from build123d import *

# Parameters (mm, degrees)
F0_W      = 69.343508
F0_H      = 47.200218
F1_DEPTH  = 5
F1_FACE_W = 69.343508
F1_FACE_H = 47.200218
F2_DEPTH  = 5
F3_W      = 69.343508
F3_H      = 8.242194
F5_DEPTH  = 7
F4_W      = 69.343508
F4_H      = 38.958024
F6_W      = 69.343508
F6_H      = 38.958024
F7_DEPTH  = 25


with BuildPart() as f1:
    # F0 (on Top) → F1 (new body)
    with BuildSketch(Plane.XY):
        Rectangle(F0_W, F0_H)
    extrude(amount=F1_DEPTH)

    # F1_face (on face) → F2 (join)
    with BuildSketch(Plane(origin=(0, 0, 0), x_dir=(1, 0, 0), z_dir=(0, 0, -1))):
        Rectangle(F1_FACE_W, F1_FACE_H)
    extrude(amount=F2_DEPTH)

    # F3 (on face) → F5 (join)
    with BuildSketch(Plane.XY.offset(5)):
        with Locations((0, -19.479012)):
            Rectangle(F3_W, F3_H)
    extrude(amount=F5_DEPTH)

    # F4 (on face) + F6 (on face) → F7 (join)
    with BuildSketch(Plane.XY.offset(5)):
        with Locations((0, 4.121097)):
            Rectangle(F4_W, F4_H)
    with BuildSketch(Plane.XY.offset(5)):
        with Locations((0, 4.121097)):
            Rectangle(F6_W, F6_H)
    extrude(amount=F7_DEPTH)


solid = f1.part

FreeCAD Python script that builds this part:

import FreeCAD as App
import Part
import Sketcher
from FreeCAD import Vector
Q = App.Units.Quantity

doc = App.newDocument("Part")
body = doc.addObject("PartDesign::Body", "Body")

sketch1 = doc.addObject("Sketcher::SketchObject", "Sketch")
body.addObject(sketch1)
sketch1.AttachmentSupport = (doc.XY_Plane, [""])
sketch1.MapMode = "FlatFace"
sketch1.addGeometry([
    Part.LineSegment(Vector(-35, 24, 0), Vector(-35, -24, 0)),
    Part.LineSegment(Vector(-35, -24, 0), Vector(35, -24, 0)),
    Part.LineSegment(Vector(35, -24, 0), Vector(35, 24, 0)),
    Part.LineSegment(Vector(35, 24, 0), Vector(-35, 24, 0)),
], False)
sketch1.addConstraint([
    Sketcher.Constraint("Coincident", 0, 2, 1, 1),
    Sketcher.Constraint("Coincident", 1, 2, 2, 1),
    Sketcher.Constraint("Coincident", 2, 2, 3, 1),
    Sketcher.Constraint("Coincident", 3, 2, 0, 1),
    Sketcher.Constraint("Vertical", 0),
    Sketcher.Constraint("Horizontal", 1),
    Sketcher.Constraint("Vertical", 2),
    Sketcher.Constraint("Horizontal", 3),
    Sketcher.Constraint("Symmetric", 0, 2, 2, 2, -1, 1),
    Sketcher.Constraint("DistanceX", 1, 1, 1, 2, Q("69.343508 mm")),
    Sketcher.Constraint("DistanceY", 0, 2, 0, 1, Q("47.200218 mm")),
])
pad1 = doc.addObject("PartDesign::Pad", "Pad")
body.addObject(pad1)
pad1.Profile = sketch1
pad1.Length = 5

sketch2 = doc.addObject("Sketcher::SketchObject", "Sketch001")
body.addObject(sketch2)
sketch2.AttachmentSupport = (doc.XY_Plane, [""])
sketch2.MapMode = "FlatFace"
sketch2.addGeometry([
    Part.LineSegment(Vector(-35, -24, 0), Vector(-35, 24, 0)),
    Part.LineSegment(Vector(-35, 24, 0), Vector(35, 24, 0)),
    Part.LineSegment(Vector(35, 24, 0), Vector(35, -24, 0)),
    Part.LineSegment(Vector(35, -24, 0), Vector(-35, -24, 0)),
], False)
sketch2.addConstraint([
    Sketcher.Constraint("Coincident", 0, 2, 1, 1),
    Sketcher.Constraint("Coincident", 1, 2, 2, 1),
    Sketcher.Constraint("Coincident", 2, 2, 3, 1),
    Sketcher.Constraint("Coincident", 3, 2, 0, 1),
    Sketcher.Constraint("Vertical", 0),
    Sketcher.Constraint("Horizontal", 1),
    Sketcher.Constraint("Vertical", 2),
    Sketcher.Constraint("Horizontal", 3),
    Sketcher.Constraint("Symmetric", 0, 2, 2, 2, -1, 1),
    Sketcher.Constraint("DistanceX", 1, 1, 1, 2, Q("69.343508 mm")),
    Sketcher.Constraint("DistanceY", 0, 1, 0, 2, Q("47.200218 mm")),
])
pad2 = doc.addObject("PartDesign::Pad", "Pad001")
body.addObject(pad2)
pad2.Profile = sketch2
pad2.Length = 5
pad2.Reversed = True

sketch3 = doc.addObject("Sketcher::SketchObject", "Sketch002")
body.addObject(sketch3)
sketch3.AttachmentSupport = (doc.XY_Plane, [""])
sketch3.MapMode = "FlatFace"
sketch3.AttachmentOffset = App.Placement(Vector(0, 0, 5), App.Rotation())
sketch3.addGeometry([
    Part.LineSegment(Vector(-35, -15, 0), Vector(-35, -24, 0)),
    Part.LineSegment(Vector(-35, -24, 0), Vector(35, -24, 0)),
    Part.LineSegment(Vector(35, -24, 0), Vector(35, -15, 0)),
    Part.LineSegment(Vector(35, -15, 0), Vector(-35, -15, 0)),
], False)
sketch3.addConstraint([
    Sketcher.Constraint("Coincident", 0, 2, 1, 1),
    Sketcher.Constraint("Coincident", 1, 2, 2, 1),
    Sketcher.Constraint("Coincident", 2, 2, 3, 1),
    Sketcher.Constraint("Coincident", 3, 2, 0, 1),
    Sketcher.Constraint("Vertical", 0),
    Sketcher.Constraint("Horizontal", 1),
    Sketcher.Constraint("Vertical", 2),
    Sketcher.Constraint("Horizontal", 3),
    Sketcher.Constraint("DistanceX", 1, 1, 1, 2, Q("69.343508 mm")),
    Sketcher.Constraint("DistanceY", 0, 2, 0, 1, Q("8.242194 mm")),
    Sketcher.Constraint("DistanceY", 0, 2, -1, 1, Q("23.600109 mm")),
    Sketcher.Constraint("DistanceX", 0, 2, -1, 1, Q("34.671754 mm")),
])
pad3 = doc.addObject("PartDesign::Pad", "Pad002")
body.addObject(pad3)
pad3.Profile = sketch3
pad3.Length = 7

sketch4 = doc.addObject("Sketcher::SketchObject", "Sketch003")
body.addObject(sketch4)
sketch4.AttachmentSupport = (doc.XY_Plane, [""])
sketch4.MapMode = "FlatFace"
sketch4.AttachmentOffset = App.Placement(Vector(0, 0, 5), App.Rotation())
sketch4.addGeometry([
    Part.LineSegment(Vector(-35, 24, 0), Vector(-35, -15, 0)),
    Part.LineSegment(Vector(-35, -15, 0), Vector(35, -15, 0)),
    Part.LineSegment(Vector(35, -15, 0), Vector(35, 24, 0)),
    Part.LineSegment(Vector(35, 24, 0), Vector(-35, 24, 0)),
], False)
sketch4.addConstraint([
    Sketcher.Constraint("Coincident", 0, 2, 1, 1),
    Sketcher.Constraint("Coincident", 1, 2, 2, 1),
    Sketcher.Constraint("Coincident", 2, 2, 3, 1),
    Sketcher.Constraint("Coincident", 3, 2, 0, 1),
    Sketcher.Constraint("Vertical", 0),
    Sketcher.Constraint("Horizontal", 1),
    Sketcher.Constraint("Vertical", 2),
    Sketcher.Constraint("Horizontal", 3),
    Sketcher.Constraint("DistanceX", 1, 1, 1, 2, Q("69.343508 mm")),
    Sketcher.Constraint("DistanceY", 0, 2, 0, 1, Q("38.958024 mm")),
    Sketcher.Constraint("DistanceY", -1, 1, 2, 2, Q("23.600109 mm")),
    Sketcher.Constraint("DistanceX", 0, 2, -1, 1, Q("34.671754 mm")),
])
pad4 = doc.addObject("PartDesign::Pad", "Pad003")
body.addObject(pad4)
pad4.Profile = sketch4
pad4.Length = 25

doc.recompute()
